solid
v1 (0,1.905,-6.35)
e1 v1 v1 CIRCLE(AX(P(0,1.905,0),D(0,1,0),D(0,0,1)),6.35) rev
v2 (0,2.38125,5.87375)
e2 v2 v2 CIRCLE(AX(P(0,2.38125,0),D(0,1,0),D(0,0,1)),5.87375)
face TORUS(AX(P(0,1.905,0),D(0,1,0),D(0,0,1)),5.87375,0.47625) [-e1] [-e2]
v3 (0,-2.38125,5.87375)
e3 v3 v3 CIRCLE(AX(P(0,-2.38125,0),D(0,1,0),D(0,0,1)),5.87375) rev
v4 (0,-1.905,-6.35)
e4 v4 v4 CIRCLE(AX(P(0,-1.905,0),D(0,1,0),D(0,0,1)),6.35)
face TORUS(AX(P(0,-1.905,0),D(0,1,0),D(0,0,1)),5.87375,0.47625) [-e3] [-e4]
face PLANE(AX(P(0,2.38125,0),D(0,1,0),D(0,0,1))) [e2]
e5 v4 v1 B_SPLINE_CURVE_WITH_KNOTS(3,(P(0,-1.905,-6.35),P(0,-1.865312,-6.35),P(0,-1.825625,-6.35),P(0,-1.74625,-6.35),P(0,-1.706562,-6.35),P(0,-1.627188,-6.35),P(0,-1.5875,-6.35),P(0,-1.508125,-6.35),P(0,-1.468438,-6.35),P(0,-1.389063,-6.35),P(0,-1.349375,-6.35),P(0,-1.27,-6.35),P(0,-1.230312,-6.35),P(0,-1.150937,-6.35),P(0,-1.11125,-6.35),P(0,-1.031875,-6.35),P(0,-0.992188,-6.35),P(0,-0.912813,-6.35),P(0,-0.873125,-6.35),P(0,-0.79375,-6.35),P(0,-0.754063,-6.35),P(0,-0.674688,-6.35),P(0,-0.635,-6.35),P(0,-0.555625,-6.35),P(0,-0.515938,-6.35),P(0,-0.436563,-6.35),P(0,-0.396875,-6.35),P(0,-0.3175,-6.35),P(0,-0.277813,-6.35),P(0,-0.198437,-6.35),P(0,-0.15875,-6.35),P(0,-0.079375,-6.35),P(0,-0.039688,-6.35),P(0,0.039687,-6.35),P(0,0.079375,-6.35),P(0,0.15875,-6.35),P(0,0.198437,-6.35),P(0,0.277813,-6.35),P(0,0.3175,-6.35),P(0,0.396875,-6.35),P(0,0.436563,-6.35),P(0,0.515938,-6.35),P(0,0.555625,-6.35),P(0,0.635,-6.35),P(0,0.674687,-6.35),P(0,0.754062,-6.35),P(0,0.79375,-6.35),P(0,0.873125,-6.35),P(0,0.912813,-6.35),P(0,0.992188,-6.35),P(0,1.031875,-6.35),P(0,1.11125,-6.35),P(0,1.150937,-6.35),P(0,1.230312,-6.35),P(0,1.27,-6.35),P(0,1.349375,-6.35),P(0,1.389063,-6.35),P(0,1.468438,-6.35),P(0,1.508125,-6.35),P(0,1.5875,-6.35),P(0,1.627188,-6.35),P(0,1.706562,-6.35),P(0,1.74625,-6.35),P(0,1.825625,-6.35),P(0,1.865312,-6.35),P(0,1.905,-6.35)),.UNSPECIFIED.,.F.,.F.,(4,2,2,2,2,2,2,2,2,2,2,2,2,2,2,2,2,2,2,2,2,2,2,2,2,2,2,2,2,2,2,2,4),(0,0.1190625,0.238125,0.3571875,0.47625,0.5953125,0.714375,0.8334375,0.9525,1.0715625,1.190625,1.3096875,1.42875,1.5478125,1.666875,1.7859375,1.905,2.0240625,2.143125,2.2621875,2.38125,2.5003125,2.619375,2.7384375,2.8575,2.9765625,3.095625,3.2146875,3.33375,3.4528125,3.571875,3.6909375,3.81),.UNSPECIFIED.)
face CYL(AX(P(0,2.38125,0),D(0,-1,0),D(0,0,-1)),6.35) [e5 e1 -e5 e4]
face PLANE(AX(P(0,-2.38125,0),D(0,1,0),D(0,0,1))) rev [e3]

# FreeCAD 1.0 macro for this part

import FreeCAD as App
import Part
import Sketcher

V = App.Vector
Q = App.Units.Quantity


def edges_at(feature, points):
    """Names of the edges that pass closest to the given points."""
    edges = feature.Shape.Edges
    near = lambda p: min(range(len(edges)), key=lambda i: edges[i].distToShape(Part.Vertex(*p))[0])
    return sorted({f"Edge{near(p) + 1}" for p in points})

doc = App.newDocument("Part")
body = doc.addObject("PartDesign::Body", "Body")

sketch1 = body.newObject("Sketcher::SketchObject", "Sketch")
sketch1.AttachmentSupport = (doc.getObject("XZ_Plane"), [""])
sketch1.MapMode = "FlatFace"
sketch1.addGeometry(Part.Circle(V(0, 0, 0), V(0, 0, 1), 6), False)
sketch1.addConstraint([
    Sketcher.Constraint("Coincident", 0, 3, -1, 1),
    Sketcher.Constraint("Diameter", 0, Q("0.5 in")),
])
pad1 = body.newObject("PartDesign::Pad", "Pad")
pad1.Profile = sketch1
pad1.Length = Q("0.1875 in")
pad1.Midplane = True
doc.recompute()

fillet = body.newObject("PartDesign::Fillet", "Fillet")
fillet.Base = (pad1, edges_at(pad1, [(0, -2.381, 6.35), (0, 2.381, 6.35)]))
fillet.Radius = 0.47625

doc.recompute()
